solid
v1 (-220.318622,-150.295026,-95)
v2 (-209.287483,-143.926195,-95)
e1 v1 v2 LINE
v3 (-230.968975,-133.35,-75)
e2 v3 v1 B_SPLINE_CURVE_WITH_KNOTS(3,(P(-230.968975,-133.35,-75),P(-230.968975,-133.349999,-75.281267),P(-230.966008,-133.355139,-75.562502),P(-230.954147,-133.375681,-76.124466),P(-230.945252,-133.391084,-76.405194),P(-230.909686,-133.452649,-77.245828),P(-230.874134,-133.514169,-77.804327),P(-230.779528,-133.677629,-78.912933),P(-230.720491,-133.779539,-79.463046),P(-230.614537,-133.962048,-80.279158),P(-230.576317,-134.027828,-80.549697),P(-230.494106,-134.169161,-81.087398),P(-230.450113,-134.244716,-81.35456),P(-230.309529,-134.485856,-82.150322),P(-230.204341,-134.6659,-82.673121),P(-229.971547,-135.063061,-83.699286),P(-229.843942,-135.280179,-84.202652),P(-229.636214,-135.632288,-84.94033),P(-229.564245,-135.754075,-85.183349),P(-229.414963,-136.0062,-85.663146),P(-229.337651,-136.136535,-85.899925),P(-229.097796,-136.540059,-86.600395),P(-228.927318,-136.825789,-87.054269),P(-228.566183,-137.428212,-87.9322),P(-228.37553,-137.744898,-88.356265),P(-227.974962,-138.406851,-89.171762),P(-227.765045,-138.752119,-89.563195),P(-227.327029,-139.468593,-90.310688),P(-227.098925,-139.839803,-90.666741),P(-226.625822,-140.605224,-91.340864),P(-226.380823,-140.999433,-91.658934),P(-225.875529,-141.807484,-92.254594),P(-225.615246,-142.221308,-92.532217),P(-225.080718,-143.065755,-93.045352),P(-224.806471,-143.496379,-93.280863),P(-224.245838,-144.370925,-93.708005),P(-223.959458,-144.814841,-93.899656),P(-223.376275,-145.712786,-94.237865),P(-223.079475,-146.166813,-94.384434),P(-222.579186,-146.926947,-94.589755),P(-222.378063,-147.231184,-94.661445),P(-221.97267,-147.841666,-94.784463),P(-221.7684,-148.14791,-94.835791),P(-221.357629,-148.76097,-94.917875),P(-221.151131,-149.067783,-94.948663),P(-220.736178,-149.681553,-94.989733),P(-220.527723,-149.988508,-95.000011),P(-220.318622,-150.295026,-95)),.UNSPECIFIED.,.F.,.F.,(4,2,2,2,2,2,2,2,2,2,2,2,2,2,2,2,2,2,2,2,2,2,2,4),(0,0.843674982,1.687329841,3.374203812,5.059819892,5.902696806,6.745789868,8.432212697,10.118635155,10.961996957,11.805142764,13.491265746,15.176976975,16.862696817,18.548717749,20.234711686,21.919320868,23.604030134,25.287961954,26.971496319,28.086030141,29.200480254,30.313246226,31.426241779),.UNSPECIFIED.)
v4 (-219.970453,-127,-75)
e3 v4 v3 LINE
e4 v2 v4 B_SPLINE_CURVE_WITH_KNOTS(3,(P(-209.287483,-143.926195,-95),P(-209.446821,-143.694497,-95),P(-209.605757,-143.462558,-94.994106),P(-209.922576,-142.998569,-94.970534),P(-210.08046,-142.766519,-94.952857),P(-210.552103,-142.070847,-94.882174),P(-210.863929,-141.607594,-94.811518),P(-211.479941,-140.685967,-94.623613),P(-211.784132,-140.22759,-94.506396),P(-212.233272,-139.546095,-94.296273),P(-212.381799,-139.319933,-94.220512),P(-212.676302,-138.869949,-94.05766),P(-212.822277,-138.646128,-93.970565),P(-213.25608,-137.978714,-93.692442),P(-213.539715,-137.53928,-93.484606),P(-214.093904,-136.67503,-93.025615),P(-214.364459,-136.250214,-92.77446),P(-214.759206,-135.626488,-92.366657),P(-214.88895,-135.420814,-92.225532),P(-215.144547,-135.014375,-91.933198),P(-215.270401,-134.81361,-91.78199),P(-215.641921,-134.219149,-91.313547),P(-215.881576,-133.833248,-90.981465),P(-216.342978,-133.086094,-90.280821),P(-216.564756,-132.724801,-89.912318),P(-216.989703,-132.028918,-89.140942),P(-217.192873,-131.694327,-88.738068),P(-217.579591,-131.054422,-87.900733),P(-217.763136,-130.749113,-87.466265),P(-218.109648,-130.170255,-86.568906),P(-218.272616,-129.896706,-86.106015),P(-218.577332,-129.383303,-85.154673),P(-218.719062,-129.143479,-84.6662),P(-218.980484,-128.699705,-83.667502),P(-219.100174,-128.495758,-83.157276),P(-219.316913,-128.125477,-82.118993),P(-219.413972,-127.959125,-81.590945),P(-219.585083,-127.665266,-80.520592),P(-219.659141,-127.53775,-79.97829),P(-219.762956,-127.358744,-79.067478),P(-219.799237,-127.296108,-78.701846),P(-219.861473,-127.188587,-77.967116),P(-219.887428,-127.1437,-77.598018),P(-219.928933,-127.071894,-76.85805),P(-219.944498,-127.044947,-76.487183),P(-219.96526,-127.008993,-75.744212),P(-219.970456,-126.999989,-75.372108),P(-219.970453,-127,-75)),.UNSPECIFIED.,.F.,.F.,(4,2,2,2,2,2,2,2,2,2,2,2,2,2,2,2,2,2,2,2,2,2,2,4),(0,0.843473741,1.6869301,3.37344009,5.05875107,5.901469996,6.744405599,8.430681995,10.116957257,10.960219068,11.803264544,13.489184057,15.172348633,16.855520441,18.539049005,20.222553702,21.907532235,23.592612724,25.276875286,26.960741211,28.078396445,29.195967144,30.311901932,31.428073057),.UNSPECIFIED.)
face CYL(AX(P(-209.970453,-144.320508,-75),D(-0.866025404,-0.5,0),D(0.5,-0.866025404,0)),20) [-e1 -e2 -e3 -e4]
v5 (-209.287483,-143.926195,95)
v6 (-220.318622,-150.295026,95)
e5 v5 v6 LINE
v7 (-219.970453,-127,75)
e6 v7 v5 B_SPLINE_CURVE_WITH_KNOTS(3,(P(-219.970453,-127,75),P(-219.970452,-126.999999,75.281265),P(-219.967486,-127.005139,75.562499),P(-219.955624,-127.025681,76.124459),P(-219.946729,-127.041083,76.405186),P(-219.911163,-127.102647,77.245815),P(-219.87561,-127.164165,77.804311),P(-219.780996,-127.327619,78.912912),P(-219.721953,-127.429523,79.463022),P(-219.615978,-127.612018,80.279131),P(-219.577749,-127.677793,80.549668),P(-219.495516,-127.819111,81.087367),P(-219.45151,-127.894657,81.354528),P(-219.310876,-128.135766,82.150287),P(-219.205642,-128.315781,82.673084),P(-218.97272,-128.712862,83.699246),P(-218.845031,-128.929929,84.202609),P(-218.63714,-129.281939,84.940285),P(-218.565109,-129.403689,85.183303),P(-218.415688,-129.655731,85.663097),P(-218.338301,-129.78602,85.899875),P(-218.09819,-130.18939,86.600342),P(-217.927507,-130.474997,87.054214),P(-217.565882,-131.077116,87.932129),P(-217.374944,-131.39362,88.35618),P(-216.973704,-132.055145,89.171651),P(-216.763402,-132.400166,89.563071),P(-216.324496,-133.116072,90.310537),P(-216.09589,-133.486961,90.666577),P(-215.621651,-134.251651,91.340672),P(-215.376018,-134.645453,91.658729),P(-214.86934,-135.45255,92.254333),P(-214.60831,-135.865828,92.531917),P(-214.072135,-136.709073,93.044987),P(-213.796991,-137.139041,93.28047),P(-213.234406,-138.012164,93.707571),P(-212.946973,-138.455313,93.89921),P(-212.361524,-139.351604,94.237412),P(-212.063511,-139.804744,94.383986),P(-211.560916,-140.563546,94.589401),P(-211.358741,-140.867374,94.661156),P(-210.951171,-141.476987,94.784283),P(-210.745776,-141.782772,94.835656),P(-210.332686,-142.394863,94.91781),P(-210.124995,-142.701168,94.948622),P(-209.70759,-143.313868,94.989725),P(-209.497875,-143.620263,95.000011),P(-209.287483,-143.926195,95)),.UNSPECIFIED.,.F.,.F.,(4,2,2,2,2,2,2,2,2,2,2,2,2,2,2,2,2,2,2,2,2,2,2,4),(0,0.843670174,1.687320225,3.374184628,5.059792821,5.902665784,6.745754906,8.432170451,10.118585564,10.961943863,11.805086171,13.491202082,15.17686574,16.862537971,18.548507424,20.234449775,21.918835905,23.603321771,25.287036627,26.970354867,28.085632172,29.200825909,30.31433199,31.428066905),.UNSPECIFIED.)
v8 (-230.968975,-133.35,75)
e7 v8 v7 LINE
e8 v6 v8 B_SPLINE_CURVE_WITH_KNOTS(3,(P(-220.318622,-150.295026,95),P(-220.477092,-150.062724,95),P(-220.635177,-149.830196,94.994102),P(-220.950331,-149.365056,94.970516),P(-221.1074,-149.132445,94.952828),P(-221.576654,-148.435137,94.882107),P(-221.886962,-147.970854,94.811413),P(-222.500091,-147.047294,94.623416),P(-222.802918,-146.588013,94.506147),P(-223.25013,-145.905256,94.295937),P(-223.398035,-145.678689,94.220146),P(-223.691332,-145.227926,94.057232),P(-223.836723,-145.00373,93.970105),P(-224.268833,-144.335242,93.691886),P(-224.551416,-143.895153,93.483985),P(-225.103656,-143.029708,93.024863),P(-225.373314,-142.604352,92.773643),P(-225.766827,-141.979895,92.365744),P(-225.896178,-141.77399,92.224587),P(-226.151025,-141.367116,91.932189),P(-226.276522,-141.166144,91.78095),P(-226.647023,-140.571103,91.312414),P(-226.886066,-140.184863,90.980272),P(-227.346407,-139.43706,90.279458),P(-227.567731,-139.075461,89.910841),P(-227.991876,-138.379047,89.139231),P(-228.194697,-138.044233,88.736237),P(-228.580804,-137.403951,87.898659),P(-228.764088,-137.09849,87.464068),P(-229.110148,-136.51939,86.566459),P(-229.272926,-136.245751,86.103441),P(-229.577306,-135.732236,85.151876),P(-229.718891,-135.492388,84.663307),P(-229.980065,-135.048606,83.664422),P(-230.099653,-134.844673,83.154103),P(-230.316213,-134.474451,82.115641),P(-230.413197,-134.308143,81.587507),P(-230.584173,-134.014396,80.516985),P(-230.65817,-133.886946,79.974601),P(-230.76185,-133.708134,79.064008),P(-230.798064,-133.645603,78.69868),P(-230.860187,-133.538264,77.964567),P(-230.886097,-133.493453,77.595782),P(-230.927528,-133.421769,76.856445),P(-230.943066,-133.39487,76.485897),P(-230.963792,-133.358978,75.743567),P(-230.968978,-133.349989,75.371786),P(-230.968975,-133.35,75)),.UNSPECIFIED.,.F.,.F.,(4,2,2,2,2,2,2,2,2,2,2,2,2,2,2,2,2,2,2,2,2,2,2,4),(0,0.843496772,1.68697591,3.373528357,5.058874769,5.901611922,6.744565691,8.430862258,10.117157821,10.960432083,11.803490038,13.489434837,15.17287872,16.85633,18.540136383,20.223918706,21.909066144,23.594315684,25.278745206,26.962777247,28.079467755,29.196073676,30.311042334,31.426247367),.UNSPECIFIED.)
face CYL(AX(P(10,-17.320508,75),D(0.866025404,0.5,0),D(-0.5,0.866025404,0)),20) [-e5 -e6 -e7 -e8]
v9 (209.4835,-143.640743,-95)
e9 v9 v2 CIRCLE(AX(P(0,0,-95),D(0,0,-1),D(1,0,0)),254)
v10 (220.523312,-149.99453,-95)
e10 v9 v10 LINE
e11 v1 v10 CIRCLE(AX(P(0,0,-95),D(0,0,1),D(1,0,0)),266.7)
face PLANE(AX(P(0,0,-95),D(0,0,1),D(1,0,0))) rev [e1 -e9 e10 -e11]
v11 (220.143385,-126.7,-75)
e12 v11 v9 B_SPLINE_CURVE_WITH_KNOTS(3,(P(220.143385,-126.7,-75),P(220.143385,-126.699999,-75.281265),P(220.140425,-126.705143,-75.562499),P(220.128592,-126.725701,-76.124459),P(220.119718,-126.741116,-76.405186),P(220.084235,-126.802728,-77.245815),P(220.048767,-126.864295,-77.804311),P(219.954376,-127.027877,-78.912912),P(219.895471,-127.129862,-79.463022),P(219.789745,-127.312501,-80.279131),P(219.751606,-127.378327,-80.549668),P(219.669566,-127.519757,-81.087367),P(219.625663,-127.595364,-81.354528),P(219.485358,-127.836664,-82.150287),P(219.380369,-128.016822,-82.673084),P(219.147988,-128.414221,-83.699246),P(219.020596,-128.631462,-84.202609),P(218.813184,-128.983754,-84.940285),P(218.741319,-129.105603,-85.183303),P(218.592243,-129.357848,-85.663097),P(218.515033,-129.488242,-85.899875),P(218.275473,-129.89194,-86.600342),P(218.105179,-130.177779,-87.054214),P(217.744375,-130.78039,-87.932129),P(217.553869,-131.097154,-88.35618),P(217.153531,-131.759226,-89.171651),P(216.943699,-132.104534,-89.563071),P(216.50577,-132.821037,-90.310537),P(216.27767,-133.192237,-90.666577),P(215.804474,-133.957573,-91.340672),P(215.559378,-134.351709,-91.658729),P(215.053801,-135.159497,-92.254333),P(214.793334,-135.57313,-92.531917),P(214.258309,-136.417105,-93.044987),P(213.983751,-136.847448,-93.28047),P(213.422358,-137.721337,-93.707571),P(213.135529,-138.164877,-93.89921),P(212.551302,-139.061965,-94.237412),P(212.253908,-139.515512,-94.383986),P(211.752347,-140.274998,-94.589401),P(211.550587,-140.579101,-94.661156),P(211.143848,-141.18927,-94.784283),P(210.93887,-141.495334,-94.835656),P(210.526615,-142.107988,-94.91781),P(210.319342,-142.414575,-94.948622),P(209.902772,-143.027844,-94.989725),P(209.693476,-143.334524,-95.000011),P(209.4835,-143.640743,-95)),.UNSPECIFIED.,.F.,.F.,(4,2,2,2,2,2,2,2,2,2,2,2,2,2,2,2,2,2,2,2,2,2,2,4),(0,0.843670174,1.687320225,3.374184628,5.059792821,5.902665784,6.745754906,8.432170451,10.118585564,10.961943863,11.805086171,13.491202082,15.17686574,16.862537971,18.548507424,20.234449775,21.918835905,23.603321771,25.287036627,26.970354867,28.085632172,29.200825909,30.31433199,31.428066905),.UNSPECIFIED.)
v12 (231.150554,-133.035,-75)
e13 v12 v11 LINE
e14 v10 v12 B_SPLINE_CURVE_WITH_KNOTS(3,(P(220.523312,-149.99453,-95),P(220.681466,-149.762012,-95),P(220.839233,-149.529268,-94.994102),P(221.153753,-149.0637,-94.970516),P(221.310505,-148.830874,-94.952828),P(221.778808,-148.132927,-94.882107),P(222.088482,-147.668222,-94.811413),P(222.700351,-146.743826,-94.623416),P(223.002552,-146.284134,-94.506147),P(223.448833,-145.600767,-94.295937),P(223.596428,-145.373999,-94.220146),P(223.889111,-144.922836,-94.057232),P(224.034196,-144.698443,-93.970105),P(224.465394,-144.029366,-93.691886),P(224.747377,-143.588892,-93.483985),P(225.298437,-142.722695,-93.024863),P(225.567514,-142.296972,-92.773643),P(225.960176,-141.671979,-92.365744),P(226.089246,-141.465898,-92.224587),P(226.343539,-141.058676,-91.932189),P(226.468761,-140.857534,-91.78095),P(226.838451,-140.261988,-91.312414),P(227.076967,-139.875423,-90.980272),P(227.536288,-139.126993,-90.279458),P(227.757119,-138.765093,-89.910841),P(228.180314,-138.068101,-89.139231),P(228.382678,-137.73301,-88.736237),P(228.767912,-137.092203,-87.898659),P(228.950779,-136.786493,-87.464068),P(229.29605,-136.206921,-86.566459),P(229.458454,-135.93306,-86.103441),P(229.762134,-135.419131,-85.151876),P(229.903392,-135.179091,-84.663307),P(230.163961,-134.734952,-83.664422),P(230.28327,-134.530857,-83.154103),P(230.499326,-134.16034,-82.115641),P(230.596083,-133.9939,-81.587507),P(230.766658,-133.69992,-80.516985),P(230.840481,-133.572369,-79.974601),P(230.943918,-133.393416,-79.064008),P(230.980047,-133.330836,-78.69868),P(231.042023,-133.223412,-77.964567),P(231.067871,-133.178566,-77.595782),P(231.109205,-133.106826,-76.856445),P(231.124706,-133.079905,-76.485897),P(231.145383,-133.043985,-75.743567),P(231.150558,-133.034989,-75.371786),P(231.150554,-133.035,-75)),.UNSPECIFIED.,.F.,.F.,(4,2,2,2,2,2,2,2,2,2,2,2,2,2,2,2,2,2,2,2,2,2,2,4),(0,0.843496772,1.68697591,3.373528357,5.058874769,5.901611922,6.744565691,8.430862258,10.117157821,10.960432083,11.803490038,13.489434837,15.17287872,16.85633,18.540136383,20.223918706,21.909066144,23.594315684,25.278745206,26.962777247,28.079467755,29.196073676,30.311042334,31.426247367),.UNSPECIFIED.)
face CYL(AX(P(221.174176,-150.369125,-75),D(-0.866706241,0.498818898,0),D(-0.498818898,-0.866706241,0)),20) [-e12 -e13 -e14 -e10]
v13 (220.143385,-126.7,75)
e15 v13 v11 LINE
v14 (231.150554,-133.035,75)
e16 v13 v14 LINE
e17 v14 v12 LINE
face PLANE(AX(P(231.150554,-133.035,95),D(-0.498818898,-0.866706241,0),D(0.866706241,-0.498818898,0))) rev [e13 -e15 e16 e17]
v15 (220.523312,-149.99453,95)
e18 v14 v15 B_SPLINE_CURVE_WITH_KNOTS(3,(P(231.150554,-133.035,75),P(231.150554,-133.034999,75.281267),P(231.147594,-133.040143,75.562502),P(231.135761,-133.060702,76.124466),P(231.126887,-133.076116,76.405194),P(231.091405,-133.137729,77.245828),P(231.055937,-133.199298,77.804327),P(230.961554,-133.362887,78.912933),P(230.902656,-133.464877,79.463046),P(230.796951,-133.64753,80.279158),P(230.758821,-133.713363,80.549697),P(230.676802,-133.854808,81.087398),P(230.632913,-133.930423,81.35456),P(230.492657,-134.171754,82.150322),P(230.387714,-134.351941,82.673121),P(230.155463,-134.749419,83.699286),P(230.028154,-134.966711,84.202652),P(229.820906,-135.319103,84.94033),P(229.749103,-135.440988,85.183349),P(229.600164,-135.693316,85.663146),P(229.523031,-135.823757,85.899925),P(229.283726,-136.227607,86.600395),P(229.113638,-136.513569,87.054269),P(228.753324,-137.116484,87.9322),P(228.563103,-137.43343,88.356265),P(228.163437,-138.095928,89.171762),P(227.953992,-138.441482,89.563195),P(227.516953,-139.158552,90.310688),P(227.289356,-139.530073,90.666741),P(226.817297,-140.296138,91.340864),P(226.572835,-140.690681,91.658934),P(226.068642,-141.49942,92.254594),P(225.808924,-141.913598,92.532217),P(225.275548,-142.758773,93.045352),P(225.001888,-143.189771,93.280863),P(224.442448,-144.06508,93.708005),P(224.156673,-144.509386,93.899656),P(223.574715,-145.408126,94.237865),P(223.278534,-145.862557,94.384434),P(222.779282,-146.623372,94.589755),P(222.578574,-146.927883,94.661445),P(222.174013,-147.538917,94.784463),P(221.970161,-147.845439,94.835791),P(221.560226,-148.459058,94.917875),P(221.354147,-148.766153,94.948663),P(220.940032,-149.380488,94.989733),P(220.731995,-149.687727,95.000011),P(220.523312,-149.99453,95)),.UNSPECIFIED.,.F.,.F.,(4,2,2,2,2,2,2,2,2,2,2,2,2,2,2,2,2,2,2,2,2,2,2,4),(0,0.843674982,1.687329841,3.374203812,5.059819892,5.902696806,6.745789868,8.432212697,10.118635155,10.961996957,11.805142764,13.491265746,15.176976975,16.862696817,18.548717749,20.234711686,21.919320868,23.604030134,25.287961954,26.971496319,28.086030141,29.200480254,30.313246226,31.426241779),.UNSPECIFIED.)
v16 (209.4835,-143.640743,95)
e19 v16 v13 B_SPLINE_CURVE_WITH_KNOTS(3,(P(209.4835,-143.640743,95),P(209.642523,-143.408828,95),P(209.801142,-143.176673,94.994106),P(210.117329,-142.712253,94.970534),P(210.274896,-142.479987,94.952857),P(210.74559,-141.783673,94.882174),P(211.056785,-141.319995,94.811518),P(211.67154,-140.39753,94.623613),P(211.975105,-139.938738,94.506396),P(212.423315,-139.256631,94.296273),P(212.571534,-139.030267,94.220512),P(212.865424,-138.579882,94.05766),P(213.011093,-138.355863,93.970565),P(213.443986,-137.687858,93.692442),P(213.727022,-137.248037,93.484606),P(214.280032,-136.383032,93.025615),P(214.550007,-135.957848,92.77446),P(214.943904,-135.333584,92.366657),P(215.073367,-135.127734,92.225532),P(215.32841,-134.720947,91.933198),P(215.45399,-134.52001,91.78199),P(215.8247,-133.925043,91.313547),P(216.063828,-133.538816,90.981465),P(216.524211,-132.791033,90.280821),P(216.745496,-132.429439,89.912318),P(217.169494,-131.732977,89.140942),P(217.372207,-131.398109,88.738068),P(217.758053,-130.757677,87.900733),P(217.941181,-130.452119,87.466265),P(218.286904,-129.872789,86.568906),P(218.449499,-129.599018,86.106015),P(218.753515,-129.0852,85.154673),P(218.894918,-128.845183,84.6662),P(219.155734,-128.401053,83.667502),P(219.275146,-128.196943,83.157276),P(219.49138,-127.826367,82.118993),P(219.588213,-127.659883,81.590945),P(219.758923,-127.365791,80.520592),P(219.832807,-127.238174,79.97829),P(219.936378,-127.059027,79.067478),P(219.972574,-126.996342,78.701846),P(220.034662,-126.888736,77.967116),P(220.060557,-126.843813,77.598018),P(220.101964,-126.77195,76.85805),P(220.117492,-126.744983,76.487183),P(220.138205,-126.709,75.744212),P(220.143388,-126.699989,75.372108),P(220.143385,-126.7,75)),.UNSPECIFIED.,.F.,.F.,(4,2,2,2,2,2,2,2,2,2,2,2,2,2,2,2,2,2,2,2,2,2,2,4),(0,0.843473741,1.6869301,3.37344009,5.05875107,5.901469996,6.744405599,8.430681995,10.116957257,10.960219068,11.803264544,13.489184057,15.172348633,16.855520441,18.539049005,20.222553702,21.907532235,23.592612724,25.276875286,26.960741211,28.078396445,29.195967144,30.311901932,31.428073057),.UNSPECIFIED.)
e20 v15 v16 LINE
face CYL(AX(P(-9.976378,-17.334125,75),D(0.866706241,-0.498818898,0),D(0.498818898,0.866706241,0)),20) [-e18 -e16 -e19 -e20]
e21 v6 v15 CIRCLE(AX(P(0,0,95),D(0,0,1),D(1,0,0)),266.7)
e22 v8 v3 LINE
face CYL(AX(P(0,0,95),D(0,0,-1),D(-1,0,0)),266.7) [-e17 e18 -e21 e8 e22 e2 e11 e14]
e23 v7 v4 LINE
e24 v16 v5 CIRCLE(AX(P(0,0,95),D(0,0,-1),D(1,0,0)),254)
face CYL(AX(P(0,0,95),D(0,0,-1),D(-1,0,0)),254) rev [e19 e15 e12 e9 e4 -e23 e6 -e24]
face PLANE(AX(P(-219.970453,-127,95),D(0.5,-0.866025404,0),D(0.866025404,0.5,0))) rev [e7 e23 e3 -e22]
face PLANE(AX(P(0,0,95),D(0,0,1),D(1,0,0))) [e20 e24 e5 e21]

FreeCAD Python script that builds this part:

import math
import FreeCAD as App
import Part
import Sketcher

V = App.Vector
Q = App.Units.Quantity


def edges_at(feature, points):
    """Names of the edges that pass closest to the given points."""
    edges = feature.Shape.Edges
    near = lambda p: min(range(len(edges)), key=lambda i: edges[i].distToShape(Part.Vertex(*p))[0])
    return sorted({f"Edge{near(p) + 1}" for p in points})

doc = App.newDocument("Part")
body = doc.addObject("PartDesign::Body", "Body")

sketch1 = body.newObject("Sketcher::SketchObject", "Sketch")
sketch1.AttachmentSupport = (doc.getObject("XY_Plane"), [""])
sketch1.MapMode = "FlatFace"
sketch1.addGeometry([
    Part.LineSegment(V(-219.970453, -127, 0), V(-230.968975, -133.35, 0)),
    Part.ArcOfCircle(Part.Circle(V(0, 0, 0), V(0, 0, 1), 266.7), math.radians(-150), math.radians(-29.92189)),
    Part.LineSegment(V(231.150554, -133.035, 0), V(220.143385, -126.7, 0)),
    Part.ArcOfCircle(Part.Circle(V(0, 0, 0), V(0, 0, 1), 254), math.radians(-150), math.radians(-29.92189)),
], False)
sketch1.addConstraint([
    Sketcher.Constraint("Coincident", 0, 2, 1, 1),
    Sketcher.Constraint("Coincident", 1, 2, 2, 1),
    Sketcher.Constraint("Coincident", 2, 2, 3, 2),
    Sketcher.Constraint("Coincident", 3, 1, 0, 1),
    Sketcher.Constraint("Coincident", 1, 3, -1, 1),
    Sketcher.Constraint("Coincident", 3, 3, -1, 1),
    Sketcher.Constraint("Radius", 3, Q("10 in")),
    Sketcher.Constraint("Radius", 1, Q("10.5 in")),
    Sketcher.Constraint("DistanceY", 3, 1, -1, 1, Q("5 in")),
    Sketcher.Constraint("Angle", 0, Q("-150 deg")),
    Sketcher.Constraint("DistanceY", 1, 2, -1, 1, Q("133.035 mm")),
    Sketcher.Constraint("DistanceY", 2, 2, -1, 1, Q("126.7 mm")),
])
pad1 = body.newObject("PartDesign::Pad", "Pad")
pad1.Profile = sketch1
pad1.Length = 190
pad1.Midplane = True
doc.recompute()

fillet = body.newObject("PartDesign::Fillet", "Fillet")
fillet.Base = (pad1, edges_at(pad1, [
    (225.647, -129.868, 95),
    (225.647, -129.868, -95),
    (-225.47, -130.175, -95),
    (-225.47, -130.175, 95),
]))
fillet.Radius = 20

doc.recompute()
